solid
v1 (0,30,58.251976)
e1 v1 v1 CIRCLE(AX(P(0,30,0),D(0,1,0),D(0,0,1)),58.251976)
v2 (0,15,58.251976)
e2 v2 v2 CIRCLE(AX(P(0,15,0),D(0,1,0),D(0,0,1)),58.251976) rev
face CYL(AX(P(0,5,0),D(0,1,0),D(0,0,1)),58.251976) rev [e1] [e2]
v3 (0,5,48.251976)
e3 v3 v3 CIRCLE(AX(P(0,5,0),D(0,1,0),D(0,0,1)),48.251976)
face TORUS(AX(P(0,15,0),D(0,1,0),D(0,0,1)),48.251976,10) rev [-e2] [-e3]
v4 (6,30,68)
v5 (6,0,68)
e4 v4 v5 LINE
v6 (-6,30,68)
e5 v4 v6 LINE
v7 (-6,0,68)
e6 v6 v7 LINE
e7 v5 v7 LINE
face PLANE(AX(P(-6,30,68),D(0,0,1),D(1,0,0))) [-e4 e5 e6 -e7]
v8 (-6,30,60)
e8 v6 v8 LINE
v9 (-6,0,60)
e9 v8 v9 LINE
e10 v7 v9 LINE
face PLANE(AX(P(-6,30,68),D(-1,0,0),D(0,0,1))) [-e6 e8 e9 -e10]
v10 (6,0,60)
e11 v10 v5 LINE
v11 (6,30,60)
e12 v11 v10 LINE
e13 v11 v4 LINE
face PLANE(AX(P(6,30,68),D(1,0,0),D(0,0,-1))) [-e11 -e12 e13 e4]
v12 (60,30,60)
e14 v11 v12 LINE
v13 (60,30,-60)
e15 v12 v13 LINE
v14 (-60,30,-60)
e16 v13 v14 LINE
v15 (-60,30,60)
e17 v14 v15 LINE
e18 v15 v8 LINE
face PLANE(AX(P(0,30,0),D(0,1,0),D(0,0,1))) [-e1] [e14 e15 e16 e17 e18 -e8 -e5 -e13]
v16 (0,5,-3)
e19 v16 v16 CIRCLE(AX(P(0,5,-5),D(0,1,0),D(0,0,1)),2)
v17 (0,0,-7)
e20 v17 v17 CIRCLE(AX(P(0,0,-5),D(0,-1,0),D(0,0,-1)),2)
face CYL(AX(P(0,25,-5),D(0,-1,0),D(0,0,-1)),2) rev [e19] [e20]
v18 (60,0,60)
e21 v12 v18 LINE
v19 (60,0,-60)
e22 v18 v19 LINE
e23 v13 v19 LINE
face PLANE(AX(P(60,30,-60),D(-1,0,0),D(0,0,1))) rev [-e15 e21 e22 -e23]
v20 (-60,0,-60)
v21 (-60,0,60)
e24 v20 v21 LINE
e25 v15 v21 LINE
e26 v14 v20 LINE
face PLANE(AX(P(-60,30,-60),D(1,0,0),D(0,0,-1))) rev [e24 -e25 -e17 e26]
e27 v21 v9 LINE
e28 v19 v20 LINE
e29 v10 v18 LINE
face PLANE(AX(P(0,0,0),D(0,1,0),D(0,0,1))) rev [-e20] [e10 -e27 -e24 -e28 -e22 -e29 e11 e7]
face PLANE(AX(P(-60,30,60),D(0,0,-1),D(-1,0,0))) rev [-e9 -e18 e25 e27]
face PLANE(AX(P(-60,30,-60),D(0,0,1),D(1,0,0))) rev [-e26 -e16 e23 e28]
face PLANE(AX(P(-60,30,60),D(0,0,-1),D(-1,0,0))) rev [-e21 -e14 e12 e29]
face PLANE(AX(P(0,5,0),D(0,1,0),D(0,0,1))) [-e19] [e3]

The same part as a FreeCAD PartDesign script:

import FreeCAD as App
import Part
import Sketcher
from FreeCAD import Vector
Q = App.Units.Quantity


def edges_at(feature, points):
    """Names of the edges that pass closest to the given points."""
    edges = feature.Shape.Edges
    near = lambda p: min(range(len(edges)), key=lambda i: edges[i].distToShape(Part.Vertex(*p))[0])
    return sorted({f"Edge{near(p) + 1}" for p in points})


def add_polygon(sketch, points):
    """Adds a closed chain of lines whose ends are joined by coincident constraints."""
    first, n = sketch.GeometryCount, len(points)
    for a, b in zip(points, points[1:] + points[:1]):
        sketch.addGeometry(Part.LineSegment(App.Vector(*a, 0), App.Vector(*b, 0)), False)
    for i in range(n):
        sketch.addConstraint(Sketcher.Constraint("Coincident", first + i, 2, first + (i + 1) % n, 1))

doc = App.newDocument("Part")
body = doc.addObject("PartDesign::Body", "Body")

# Sketch on XZ plane
sketch1 = body.newObject("Sketcher::SketchObject", "Sketch")
sketch1.AttachmentSupport = (doc.getObject("XZ_Plane"), [""])
sketch1.MapMode = "FlatFace"
add_polygon(sketch1, [(-60, -60), (-60, 60), (60, 60), (60, -60)])  # lines 0-3
sketch1.addConstraint([
    Sketcher.Constraint("Vertical", 0),
    Sketcher.Constraint("Horizontal", 1),
    Sketcher.Constraint("Vertical", 2),
    Sketcher.Constraint("Horizontal", 3),
    Sketcher.Constraint("Symmetric", 0, 2, 2, 2, -1, 1),
    Sketcher.Constraint("Equal", 3, 0),
    Sketcher.Constraint("DistanceX", 1, 1, 1, 2, Q("120 mm")),
])
pad1 = body.newObject("PartDesign::Pad", "Pad")
pad1.Profile = sketch1
pad1.Length = 30
pad1.Reversed = True

# Sketch on XZ plane
sketch2 = body.newObject("Sketcher::SketchObject", "Sketch001")
sketch2.AttachmentSupport = (doc.getObject("XZ_Plane"), [""])
sketch2.MapMode = "FlatFace"
sketch2.AttachmentOffset = App.Placement(Vector(0, 0, -30), App.Rotation())
sketch2.addGeometry(Part.Circle(Vector(0, 0, 0), Vector(0, 0, 1), 58), False)
sketch2.addConstraint([
    Sketcher.Constraint("Coincident", 0, 3, -1, 1),
    Sketcher.Constraint("Diameter", 0, Q("116.503953 mm")),
])
pocket1 = body.newObject("PartDesign::Pocket", "Pocket")
pocket1.Profile = sketch2
pocket1.Length = 25
pocket1.Reversed = True
doc.recompute()

fillet = body.newObject("PartDesign::Fillet", "Fillet")
fillet.Base = (pocket1, edges_at(pocket1, [(0, 5, -58.252)]))
fillet.Radius = 10

# Sketch on XZ plane
sketch3 = body.newObject("Sketcher::SketchObject", "Sketch002")
sketch3.AttachmentSupport = (doc.getObject("XZ_Plane"), [""])
sketch3.MapMode = "FlatFace"
sketch3.addGeometry(Part.Circle(Vector(0, -5, 0), Vector(0, 0, 1), 2), False)
sketch3.addConstraint([
    Sketcher.Constraint("PointOnObject", 0, 3, -2),
    Sketcher.Constraint("Diameter", 0, Q("4 mm")),
    Sketcher.Constraint("DistanceY", 0, 3, -1, 1, Q("5 mm")),
])
pocket2 = body.newObject("PartDesign::Pocket", "Pocket001")
pocket2.Profile = sketch3
pocket2.Length = 25

# Sketch on XZ plane
sketch4 = body.newObject("Sketcher::SketchObject", "Sketch003")
sketch4.AttachmentSupport = (doc.getObject("XZ_Plane"), [""])
sketch4.MapMode = "FlatFace"
add_polygon(sketch4, [(-6, 68), (-6, 60), (6, 60), (6, 68)])  # lines 0-3
sketch4.addConstraint([
    Sketcher.Constraint("Vertical", 0),
    Sketcher.Constraint("Horizontal", 1),
    Sketcher.Constraint("Vertical", 2),
    Sketcher.Constraint("Horizontal", 3),
    Sketcher.Constraint("DistanceX", 1, 1, 1, 2, Q("12 mm")),
    Sketcher.Constraint("DistanceY", 0, 2, 0, 1, Q("8 mm")),
    Sketcher.Constraint("DistanceX", 0, 2, -1, 1, Q("6 mm")),
    Sketcher.Constraint("DistanceY", -1, 1, 0, 2, Q("60 mm")),
])
pad2 = body.newObject("PartDesign::Pad", "Pad001")
pad2.Profile = sketch4
pad2.Length = 30
pad2.Reversed = True

doc.recompute()
